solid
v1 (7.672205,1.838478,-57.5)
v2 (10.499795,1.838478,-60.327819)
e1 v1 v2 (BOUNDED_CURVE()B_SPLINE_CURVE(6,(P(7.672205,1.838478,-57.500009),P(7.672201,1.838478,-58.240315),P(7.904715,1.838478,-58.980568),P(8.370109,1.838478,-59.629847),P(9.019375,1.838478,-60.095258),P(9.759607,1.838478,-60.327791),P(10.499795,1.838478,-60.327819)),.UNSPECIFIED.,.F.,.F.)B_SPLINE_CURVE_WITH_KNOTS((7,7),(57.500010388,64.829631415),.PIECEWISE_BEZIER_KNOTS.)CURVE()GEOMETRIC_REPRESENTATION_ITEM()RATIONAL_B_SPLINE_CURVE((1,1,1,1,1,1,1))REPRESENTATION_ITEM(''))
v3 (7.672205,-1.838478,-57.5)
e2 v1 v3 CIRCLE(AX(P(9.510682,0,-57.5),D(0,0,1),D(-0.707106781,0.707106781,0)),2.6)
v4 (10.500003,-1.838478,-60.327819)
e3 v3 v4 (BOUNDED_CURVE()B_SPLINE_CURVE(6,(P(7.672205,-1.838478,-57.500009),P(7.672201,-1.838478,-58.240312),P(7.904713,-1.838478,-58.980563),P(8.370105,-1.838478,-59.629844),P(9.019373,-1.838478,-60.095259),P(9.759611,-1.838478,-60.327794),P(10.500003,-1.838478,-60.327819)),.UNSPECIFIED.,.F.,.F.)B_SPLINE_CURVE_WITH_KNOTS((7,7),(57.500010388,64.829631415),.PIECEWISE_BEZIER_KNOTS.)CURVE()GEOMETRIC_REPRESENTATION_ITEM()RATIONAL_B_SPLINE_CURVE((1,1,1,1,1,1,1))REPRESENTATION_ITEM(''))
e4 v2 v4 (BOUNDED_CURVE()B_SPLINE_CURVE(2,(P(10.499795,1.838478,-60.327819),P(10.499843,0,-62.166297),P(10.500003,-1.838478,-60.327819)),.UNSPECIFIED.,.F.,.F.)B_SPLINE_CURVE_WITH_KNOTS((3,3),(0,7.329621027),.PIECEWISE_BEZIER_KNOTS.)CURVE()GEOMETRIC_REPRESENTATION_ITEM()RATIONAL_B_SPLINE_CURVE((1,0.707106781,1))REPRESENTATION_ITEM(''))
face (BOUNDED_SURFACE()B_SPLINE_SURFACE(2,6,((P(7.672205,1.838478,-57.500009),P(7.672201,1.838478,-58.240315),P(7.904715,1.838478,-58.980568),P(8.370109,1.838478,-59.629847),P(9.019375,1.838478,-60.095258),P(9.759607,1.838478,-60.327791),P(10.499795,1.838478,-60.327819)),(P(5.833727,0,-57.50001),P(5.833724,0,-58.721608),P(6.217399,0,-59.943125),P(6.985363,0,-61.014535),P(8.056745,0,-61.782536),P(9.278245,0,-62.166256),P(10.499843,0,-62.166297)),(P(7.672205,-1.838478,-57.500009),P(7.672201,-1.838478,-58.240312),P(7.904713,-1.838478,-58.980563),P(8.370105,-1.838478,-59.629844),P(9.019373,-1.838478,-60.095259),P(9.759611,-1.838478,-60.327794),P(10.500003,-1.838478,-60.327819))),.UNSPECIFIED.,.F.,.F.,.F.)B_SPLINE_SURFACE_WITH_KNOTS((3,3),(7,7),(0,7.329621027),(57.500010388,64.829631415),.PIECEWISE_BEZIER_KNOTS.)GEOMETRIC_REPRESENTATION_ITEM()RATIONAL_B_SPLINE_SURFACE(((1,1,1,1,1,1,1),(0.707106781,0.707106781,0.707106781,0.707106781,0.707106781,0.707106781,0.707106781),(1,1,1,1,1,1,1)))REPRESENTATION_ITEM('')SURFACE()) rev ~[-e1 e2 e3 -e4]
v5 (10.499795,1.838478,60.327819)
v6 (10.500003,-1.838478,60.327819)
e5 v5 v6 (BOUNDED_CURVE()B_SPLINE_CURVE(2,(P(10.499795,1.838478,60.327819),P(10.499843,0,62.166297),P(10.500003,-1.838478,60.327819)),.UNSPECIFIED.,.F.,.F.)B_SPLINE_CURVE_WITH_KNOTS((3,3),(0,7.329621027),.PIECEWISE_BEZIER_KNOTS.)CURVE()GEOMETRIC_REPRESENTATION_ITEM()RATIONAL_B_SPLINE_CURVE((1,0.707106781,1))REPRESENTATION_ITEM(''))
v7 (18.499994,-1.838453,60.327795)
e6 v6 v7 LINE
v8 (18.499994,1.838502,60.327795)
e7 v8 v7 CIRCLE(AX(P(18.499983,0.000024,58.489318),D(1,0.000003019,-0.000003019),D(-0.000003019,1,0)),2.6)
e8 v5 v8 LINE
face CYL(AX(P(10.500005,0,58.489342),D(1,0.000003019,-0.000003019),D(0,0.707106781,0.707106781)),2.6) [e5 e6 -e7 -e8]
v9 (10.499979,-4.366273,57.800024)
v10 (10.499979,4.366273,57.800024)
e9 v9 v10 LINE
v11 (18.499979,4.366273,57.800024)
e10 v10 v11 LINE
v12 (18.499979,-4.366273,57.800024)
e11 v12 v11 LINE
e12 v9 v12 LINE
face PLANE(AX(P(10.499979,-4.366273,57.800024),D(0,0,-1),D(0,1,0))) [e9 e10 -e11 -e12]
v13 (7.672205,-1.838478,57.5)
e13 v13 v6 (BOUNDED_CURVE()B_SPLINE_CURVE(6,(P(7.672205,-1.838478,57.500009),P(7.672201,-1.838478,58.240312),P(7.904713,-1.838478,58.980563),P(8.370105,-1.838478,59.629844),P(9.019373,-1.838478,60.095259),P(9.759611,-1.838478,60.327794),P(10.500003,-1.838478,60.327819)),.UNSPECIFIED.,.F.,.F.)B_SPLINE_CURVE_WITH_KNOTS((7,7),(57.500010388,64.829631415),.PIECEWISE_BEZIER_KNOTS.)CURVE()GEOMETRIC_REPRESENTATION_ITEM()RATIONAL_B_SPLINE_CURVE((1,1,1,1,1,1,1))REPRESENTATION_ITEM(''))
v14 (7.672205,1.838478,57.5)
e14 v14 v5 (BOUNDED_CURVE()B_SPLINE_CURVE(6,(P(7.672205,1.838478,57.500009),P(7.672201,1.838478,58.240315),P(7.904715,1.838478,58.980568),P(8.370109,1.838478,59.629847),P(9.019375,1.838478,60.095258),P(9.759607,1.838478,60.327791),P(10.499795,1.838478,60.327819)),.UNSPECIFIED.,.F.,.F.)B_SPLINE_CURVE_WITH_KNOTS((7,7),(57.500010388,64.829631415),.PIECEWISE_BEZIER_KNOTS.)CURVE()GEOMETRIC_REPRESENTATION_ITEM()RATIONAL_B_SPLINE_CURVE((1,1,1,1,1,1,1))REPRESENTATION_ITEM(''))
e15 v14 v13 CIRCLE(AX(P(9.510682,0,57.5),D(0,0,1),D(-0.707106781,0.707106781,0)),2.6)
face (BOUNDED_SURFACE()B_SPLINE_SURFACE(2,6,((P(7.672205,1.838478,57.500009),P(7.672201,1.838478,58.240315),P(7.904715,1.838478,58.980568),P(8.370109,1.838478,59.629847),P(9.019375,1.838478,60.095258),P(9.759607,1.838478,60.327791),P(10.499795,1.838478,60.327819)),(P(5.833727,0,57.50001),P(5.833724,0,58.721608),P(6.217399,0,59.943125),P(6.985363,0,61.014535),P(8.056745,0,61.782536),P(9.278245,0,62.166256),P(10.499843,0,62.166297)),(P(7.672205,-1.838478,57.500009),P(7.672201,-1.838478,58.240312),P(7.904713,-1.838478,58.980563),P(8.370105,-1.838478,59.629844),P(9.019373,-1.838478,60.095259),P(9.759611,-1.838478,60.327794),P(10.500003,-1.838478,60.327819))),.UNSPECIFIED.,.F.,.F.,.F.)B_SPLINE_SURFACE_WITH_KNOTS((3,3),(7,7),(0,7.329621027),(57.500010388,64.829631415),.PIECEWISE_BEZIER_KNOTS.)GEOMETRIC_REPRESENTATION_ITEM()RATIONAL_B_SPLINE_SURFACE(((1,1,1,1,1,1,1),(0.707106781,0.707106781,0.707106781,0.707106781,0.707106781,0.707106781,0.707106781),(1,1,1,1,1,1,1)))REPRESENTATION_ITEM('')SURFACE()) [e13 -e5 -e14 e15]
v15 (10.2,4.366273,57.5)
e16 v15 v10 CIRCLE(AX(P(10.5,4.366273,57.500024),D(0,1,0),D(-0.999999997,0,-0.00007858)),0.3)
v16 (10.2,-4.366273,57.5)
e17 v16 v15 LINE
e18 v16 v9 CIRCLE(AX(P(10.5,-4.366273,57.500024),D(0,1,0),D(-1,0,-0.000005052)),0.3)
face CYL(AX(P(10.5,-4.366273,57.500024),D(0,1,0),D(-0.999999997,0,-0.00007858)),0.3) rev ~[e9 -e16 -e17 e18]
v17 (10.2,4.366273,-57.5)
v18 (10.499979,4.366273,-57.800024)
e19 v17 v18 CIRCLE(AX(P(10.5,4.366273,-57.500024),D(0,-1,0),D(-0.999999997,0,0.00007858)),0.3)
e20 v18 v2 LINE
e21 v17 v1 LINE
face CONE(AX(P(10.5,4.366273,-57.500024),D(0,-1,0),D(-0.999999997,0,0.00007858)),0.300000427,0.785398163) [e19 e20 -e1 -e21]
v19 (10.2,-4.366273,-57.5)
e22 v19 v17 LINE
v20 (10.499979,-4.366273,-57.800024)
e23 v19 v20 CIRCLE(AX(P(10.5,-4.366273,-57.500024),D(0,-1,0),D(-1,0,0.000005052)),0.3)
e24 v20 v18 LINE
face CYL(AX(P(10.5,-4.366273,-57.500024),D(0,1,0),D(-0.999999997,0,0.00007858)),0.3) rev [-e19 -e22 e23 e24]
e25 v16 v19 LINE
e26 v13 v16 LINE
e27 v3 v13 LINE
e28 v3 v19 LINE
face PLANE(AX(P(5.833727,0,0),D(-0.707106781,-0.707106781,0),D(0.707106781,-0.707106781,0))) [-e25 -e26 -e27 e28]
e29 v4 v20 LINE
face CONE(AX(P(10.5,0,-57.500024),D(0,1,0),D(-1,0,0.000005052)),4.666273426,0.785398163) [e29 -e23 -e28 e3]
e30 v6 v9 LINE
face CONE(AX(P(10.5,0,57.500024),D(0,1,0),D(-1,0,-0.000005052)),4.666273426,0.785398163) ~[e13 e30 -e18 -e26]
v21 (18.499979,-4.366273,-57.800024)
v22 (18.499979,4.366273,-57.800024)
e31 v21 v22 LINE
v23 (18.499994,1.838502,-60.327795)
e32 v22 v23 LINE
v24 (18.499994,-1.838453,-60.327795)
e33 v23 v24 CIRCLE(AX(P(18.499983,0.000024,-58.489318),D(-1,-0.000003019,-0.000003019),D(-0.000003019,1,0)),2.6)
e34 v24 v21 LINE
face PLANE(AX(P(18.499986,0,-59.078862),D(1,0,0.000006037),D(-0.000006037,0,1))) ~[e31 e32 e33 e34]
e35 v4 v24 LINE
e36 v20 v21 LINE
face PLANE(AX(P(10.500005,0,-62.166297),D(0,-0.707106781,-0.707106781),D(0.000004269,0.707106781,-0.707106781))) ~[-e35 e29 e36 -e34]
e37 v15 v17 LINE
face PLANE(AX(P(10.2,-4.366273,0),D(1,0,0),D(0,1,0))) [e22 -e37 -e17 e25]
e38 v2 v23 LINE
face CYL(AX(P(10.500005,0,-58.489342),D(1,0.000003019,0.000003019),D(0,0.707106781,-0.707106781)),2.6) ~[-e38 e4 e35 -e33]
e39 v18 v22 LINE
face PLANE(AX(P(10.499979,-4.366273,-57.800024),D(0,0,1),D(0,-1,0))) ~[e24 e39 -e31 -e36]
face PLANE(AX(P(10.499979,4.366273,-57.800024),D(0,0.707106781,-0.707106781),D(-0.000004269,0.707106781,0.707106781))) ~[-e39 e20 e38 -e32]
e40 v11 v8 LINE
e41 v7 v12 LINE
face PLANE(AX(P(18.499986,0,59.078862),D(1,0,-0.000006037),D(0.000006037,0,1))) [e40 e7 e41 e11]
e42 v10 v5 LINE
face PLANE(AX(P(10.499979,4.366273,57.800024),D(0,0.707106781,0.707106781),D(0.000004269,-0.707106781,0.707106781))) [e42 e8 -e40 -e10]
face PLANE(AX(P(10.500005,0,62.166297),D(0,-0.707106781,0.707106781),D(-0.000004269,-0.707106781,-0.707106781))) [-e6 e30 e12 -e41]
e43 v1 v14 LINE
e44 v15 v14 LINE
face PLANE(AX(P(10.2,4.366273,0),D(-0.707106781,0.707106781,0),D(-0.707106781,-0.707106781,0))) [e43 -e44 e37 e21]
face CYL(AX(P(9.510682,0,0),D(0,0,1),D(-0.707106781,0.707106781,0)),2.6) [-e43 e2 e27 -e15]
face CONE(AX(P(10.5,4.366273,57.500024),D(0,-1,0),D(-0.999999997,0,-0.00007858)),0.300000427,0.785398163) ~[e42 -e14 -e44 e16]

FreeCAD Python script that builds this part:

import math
import FreeCAD as App
import Part
import Sketcher
from FreeCAD import Vector
Q = App.Units.Quantity


def edges_at(feature, points):
    """Names of the edges that pass closest to the given points."""
    edges = feature.Shape.Edges
    near = lambda p: min(range(len(edges)), key=lambda i: edges[i].distToShape(Part.Vertex(*p))[0])
    return sorted({f"Edge{near(p) + 1}" for p in points})

doc = App.newDocument("Part")
body = doc.addObject("PartDesign::Body", "Body")

# Sketch on XY plane
sketch1 = body.newObject("Sketcher::SketchObject", "Sketch")
sketch1.AttachmentSupport = (doc.getObject("XY_Plane"), [""])
sketch1.MapMode = "FlatFace"
sketch1.addGeometry(Part.LineSegment(Vector(10, 4, 0), Vector(6, 0, 0)), False)
sketch1.addGeometry(Part.LineSegment(Vector(6, 0, 0), Vector(10, -4, 0)), False)
sketch1.addGeometry(Part.LineSegment(Vector(10, -4, 0), Vector(10, 4, 0)), False)
sketch1.addConstraint(Sketcher.Constraint("Coincident", 0, 2, 1, 1))
sketch1.addConstraint(Sketcher.Constraint("Coincident", 1, 2, 2, 1))
sketch1.addConstraint(Sketcher.Constraint("Coincident", 2, 2, 0, 1))
sketch1.addConstraint(Sketcher.Constraint("Vertical", 2))
sketch1.addConstraint(Sketcher.Constraint("PointOnObject", 0, 2, -1))
sketch1.addConstraint(Sketcher.Constraint("Perpendicular", 0, 1))
sketch1.addConstraint(Sketcher.Constraint("Equal", 0, 1))
sketch1.addConstraint(Sketcher.Constraint("DistanceX", -1, 1, 1, 2, Q("10.2 mm")))
sketch1.addConstraint(Sketcher.Constraint("DistanceY", 2, 1, 2, 2, Q("8.732546 mm")))

# Sketch on XZ plane
sketch2 = body.newObject("Sketcher::SketchObject", "Sketch001")
sketch2.AttachmentSupport = (doc.getObject("XZ_Plane"), [""])
sketch2.MapMode = "FlatFace"
sketch2.addGeometry(Part.LineSegment(Vector(6.5, 0, 0), Vector(6.5, 57.5, 0)), False)
sketch2.addGeometry(Part.ArcOfCircle(Part.Circle(Vector(10.5, 57.5, 0), Vector(0, 0, 1), 4), math.radians(90), math.radians(180)), False)
sketch2.addGeometry(Part.LineSegment(Vector(10.5, 61.5, 0), Vector(18.5, 61.5, 0)), False)
sketch2.addConstraint(Sketcher.Constraint("Coincident", 0, 2, 1, 2))
sketch2.addConstraint(Sketcher.Constraint("Tangent", 1, 1, 2, 1))
sketch2.addConstraint(Sketcher.Constraint("Vertical", 0))
sketch2.addConstraint(Sketcher.Constraint("Horizontal", 2))
sketch2.addConstraint(Sketcher.Constraint("PointOnObject", 0, 1, -1))
sketch2.addConstraint(Sketcher.Constraint("Radius", 1, Q("4 mm")))
sketch2.addConstraint(Sketcher.Constraint("DistanceX", 2, 1, 2, 2, Q("8 mm")))
sketch2.addConstraint(Sketcher.Constraint("DistanceY", 0, 1, 0, 2, Q("57.5 mm")))
sketch2.addConstraint(Sketcher.Constraint("DistanceX", -1, 1, 1, 3, Q("10.5 mm")))
sketch2.addConstraint(Sketcher.Constraint("DistanceY", -1, 1, 1, 3, Q("57.500024 mm")))
doc.recompute()

additivepipe = body.newObject("PartDesign::AdditivePipe", "AdditivePipe")
additivepipe.Profile = sketch1
additivepipe.Spine = (sketch2, ["Edge1", "Edge2", "Edge3"])
doc.recompute()

fillet = body.newObject("PartDesign::Fillet", "Fillet")
fillet.Base = (additivepipe, edges_at(additivepipe, [(14.5, 0, 62.166)]))
fillet.Radius = 2.6
body2 = doc.addObject("PartDesign::Body", "Body001")
doc.recompute()

mirroring = doc.addObject("Part::Mirroring", "Mirroring")
mirroring.Source = body
mirroring.Base = Vector(0, 0, 0)
mirroring.Normal = Vector(0, 0, 1)
body2.BaseFeature = mirroring
doc.recompute()

boolean = body2.newObject("PartDesign::Boolean", "Boolean")
boolean.Type = "Fuse"
boolean.addObjects([body])
mirroring.Visibility = False

doc.recompute()
